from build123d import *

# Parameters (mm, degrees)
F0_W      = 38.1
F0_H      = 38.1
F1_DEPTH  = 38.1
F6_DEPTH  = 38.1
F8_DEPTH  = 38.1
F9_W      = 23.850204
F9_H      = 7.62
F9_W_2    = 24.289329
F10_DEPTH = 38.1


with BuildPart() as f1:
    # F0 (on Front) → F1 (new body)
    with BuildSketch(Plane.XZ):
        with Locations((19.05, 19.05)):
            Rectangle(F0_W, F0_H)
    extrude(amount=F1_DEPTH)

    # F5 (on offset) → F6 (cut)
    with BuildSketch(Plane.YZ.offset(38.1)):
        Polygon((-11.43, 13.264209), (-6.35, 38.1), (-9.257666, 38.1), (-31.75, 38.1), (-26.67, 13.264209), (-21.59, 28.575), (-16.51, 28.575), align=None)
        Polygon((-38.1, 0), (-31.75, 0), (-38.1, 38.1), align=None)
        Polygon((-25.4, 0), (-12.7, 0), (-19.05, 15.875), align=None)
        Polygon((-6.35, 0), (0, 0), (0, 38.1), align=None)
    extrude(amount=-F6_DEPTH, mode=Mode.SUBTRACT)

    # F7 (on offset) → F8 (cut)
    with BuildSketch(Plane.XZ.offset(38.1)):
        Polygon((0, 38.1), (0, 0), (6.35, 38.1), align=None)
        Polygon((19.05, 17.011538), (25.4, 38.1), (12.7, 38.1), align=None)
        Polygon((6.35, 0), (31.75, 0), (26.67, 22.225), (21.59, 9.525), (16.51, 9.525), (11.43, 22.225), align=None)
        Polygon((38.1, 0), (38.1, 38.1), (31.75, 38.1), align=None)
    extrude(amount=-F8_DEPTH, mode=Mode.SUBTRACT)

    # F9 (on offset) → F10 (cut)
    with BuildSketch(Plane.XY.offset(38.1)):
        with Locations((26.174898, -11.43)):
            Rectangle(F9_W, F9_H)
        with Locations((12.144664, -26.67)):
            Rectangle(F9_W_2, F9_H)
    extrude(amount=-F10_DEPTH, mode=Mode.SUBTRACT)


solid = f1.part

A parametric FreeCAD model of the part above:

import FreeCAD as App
import Part
import Sketcher

V = App.Vector
Q = App.Units.Quantity

doc = App.newDocument("Part")
body = doc.addObject("PartDesign::Body", "Body")

# Sketch on XZ plane
sketch1 = body.newObject("Sketcher::SketchObject", "Sketch")
sketch1.AttachmentSupport = (doc.getObject("XZ_Plane"), [""])
sketch1.MapMode = "FlatFace"
sketch1.addGeometry([
    Part.LineSegment(V(0, 38.1, 0), V(0, 0, 0)),
    Part.LineSegment(V(0, 0, 0), V(38.1, 0, 0)),
    Part.LineSegment(V(38.1, 0, 0), V(38.1, 38.1, 0)),
    Part.LineSegment(V(38.1, 38.1, 0), V(0, 38.1, 0)),
], False)
sketch1.addConstraint([
    Sketcher.Constraint("Coincident", 0, 2, 1, 1),
    Sketcher.Constraint("Coincident", 1, 2, 2, 1),
    Sketcher.Constraint("Coincident", 2, 2, 3, 1),
    Sketcher.Constraint("Coincident", 3, 2, 0, 1),
    Sketcher.Constraint("Vertical", 0),
    Sketcher.Constraint("Horizontal", 1),
    Sketcher.Constraint("Vertical", 2),
    Sketcher.Constraint("Horizontal", 3),
    Sketcher.Constraint("Coincident", 0, 2, -1, 1),
    Sketcher.Constraint("Equal", 3, 0),
    Sketcher.Constraint("DistanceX", 1, 1, 1, 2, Q("1.5 in")),
])
pad1 = body.newObject("PartDesign::Pad", "Pad")
pad1.Profile = sketch1
pad1.Length = Q("1.5 in")

# Sketch on YZ plane
sketch2 = body.newObject("Sketcher::SketchObject", "Sketch001")
sketch2.AttachmentSupport = (doc.getObject("YZ_Plane"), [""])
sketch2.MapMode = "FlatFace"
sketch2.AttachmentOffset = App.Placement(V(0, 0, 1.5 * 25.4), App.Rotation())
sketch2.addGeometry([
    Part.LineSegment(V(-11.43, 13.264209, 0), V(-6.35, 38.1, 0)),  # 0
    Part.LineSegment(V(-6.35, 38.1, 0), V(-31.75, 38.1, 0)),  # 1
    Part.LineSegment(V(-31.75, 38.1, 0), V(-26.67, 13.264209, 0)),  # 2
    Part.LineSegment(V(-26.67, 13.264209, 0), V(-21.59, 28.575, 0)),  # 3
    Part.LineSegment(V(-21.59, 28.575, 0), V(-16.51, 28.575, 0)),  # 4
    Part.LineSegment(V(-16.51, 28.575, 0), V(-11.43, 13.264209, 0)),  # 5
    Part.LineSegment(V(-38.1, 0, 0), V(-31.75, 0, 0)),  # 6
    Part.LineSegment(V(-31.75, 0, 0), V(-38.1, 38.1, 0)),  # 7
    Part.LineSegment(V(-38.1, 38.1, 0), V(-38.1, 0, 0)),  # 8
    Part.LineSegment(V(-25.4, 0, 0), V(-12.7, 0, 0)),  # 9
    Part.LineSegment(V(-12.7, 0, 0), V(-19.05, 15.875, 0)),  # 10
    Part.LineSegment(V(-19.05, 15.875, 0), V(-25.4, 0, 0)),  # 11
    Part.LineSegment(V(-6.35, 0, 0), V(0, 0, 0)),  # 12
    Part.LineSegment(V(0, 0, 0), V(0, 38.1, 0)),  # 13
    Part.LineSegment(V(0, 38.1, 0), V(-6.35, 0, 0)),  # 14
], False)
sketch2.addConstraint([
    Sketcher.Constraint("Coincident", 0, 2, 1, 1),
    Sketcher.Constraint("Coincident", 1, 2, 2, 1),
    Sketcher.Constraint("Coincident", 2, 2, 3, 1),
    Sketcher.Constraint("Coincident", 3, 2, 4, 1),
    Sketcher.Constraint("Coincident", 4, 2, 5, 1),
    Sketcher.Constraint("Coincident", 5, 2, 0, 1),
    Sketcher.Constraint("Coincident", 6, 2, 7, 1),
    Sketcher.Constraint("Coincident", 7, 2, 8, 1),
    Sketcher.Constraint("Coincident", 8, 2, 6, 1),
    Sketcher.Constraint("Coincident", 9, 2, 10, 1),
    Sketcher.Constraint("Coincident", 10, 2, 11, 1),
    Sketcher.Constraint("Coincident", 11, 2, 9, 1),
    Sketcher.Constraint("Coincident", 12, 2, 13, 1),
    Sketcher.Constraint("Coincident", 13, 2, 14, 1),
    Sketcher.Constraint("Coincident", 14, 2, 12, 1),
    Sketcher.Constraint("Horizontal", 1),
    Sketcher.Constraint("Horizontal", 4),
    Sketcher.Constraint("Horizontal", 6),
    Sketcher.Constraint("Vertical", 8),
    Sketcher.Constraint("Horizontal", 9),
    Sketcher.Constraint("Horizontal", 12),
    Sketcher.Constraint("Vertical", 13),
    Sketcher.Constraint("Coincident", 12, 2, -1, 1),
    Sketcher.Constraint("PointOnObject", 6, 2, -1),
    Sketcher.Constraint("PointOnObject", 9, 2, -1),
    Sketcher.Constraint("Horizontal", 2, 2, 5, 2),
    Sketcher.Constraint("Horizontal", 1, 2, 7, 2),
    Sketcher.Constraint("Horizontal", 7, 2, 13, 2),
    Sketcher.Constraint("Vertical", 1, 2, 6, 2),
    Sketcher.Constraint("Vertical", 0, 2, 14, 2),
    Sketcher.Constraint("Equal", 6, 12),
    Sketcher.Constraint("Equal", 0, 2),
    Sketcher.Constraint("Equal", 3, 5),
    Sketcher.Constraint("Equal", 10, 11),
    Sketcher.Constraint("DistanceX", 1, 2, 1, 1, Q("1 in")),
    Sketcher.Constraint("DistanceX", 4, 1, 4, 2, Q("0.2 in")),
    Sketcher.Constraint("DistanceX", 9, 1, 9, 2, Q("0.5 in")),
    Sketcher.Constraint("DistanceY", 8, 2, 8, 1, Q("1.5 in")),
    Sketcher.Constraint("DistanceX", 11, 2, -1, 1, Q("1 in")),
    Sketcher.Constraint("DistanceX", 8, 2, 9, 2, Q("1 in")),
    Sketcher.Constraint("DistanceX", 1, 2, 2, 2, Q("0.2 in")),
    Sketcher.Constraint("DistanceY", 10, 2, 3, 2, Q("0.5 in")),
    Sketcher.Constraint("DistanceY", -1, 1, 3, 2, Q("1.125 in")),
    Sketcher.Constraint("Distance", 3, Q("0.6351002 in")),
])
pocket1 = body.newObject("PartDesign::Pocket", "Pocket")
pocket1.Profile = sketch2
pocket1.Length = Q("1.5 in")

# Sketch on XZ plane
sketch3 = body.newObject("Sketcher::SketchObject", "Sketch002")
sketch3.AttachmentSupport = (doc.getObject("XZ_Plane"), [""])
sketch3.MapMode = "FlatFace"
sketch3.AttachmentOffset = App.Placement(V(0, 0, 1.5 * 25.4), App.Rotation())
sketch3.addGeometry([
    Part.LineSegment(V(0, 38.1, 0), V(0, 0, 0)),  # 0
    Part.LineSegment(V(0, 0, 0), V(6.35, 38.1, 0)),  # 1
    Part.LineSegment(V(6.35, 38.1, 0), V(0, 38.1, 0)),  # 2
    Part.LineSegment(V(19.05, 17.011538, 0), V(25.4, 38.1, 0)),  # 3
    Part.LineSegment(V(25.4, 38.1, 0), V(12.7, 38.1, 0)),  # 4
    Part.LineSegment(V(12.7, 38.1, 0), V(19.05, 17.011538, 0)),  # 5
    Part.LineSegment(V(6.35, 0, 0), V(31.75, 0, 0)),  # 6
    Part.LineSegment(V(31.75, 0, 0), V(26.67, 22.225, 0)),  # 7
    Part.LineSegment(V(26.67, 22.225, 0), V(21.59, 9.525, 0)),  # 8
    Part.LineSegment(V(21.59, 9.525, 0), V(16.51, 9.525, 0)),  # 9
    Part.LineSegment(V(16.51, 9.525, 0), V(11.43, 22.225, 0)),  # 10
    Part.LineSegment(V(11.43, 22.225, 0), V(6.35, 0, 0)),  # 11
    Part.LineSegment(V(38.1, 0, 0), V(38.1, 38.1, 0)),  # 12
    Part.LineSegment(V(38.1, 38.1, 0), V(31.75, 38.1, 0)),  # 13
    Part.LineSegment(V(31.75, 38.1, 0), V(38.1, 0, 0)),  # 14
], False)
sketch3.addConstraint([
    Sketcher.Constraint("Coincident", 0, 2, 1, 1),
    Sketcher.Constraint("Coincident", 1, 2, 2, 1),
    Sketcher.Constraint("Coincident", 2, 2, 0, 1),
    Sketcher.Constraint("Coincident", 3, 2, 4, 1),
    Sketcher.Constraint("Coincident", 4, 2, 5, 1),
    Sketcher.Constraint("Coincident", 5, 2, 3, 1),
    Sketcher.Constraint("Coincident", 6, 2, 7, 1),
    Sketcher.Constraint("Coincident", 7, 2, 8, 1),
    Sketcher.Constraint("Coincident", 8, 2, 9, 1),
    Sketcher.Constraint("Coincident", 9, 2, 10, 1),
    Sketcher.Constraint("Coincident", 10, 2, 11, 1),
    Sketcher.Constraint("Coincident", 11, 2, 6, 1),
    Sketcher.Constraint("Coincident", 12, 2, 13, 1),
    Sketcher.Constraint("Coincident", 13, 2, 14, 1),
    Sketcher.Constraint("Coincident", 14, 2, 12, 1),
    Sketcher.Constraint("Vertical", 0),
    Sketcher.Constraint("Horizontal", 2),
    Sketcher.Constraint("Horizontal", 4),
    Sketcher.Constraint("Horizontal", 6),
    Sketcher.Constraint("Horizontal", 9),
    Sketcher.Constraint("Vertical", 12),
    Sketcher.Constraint("Horizontal", 13),
    Sketcher.Constraint("Coincident", 0, 2, -1, 1),
    Sketcher.Constraint("PointOnObject", 6, 2, -1),
    Sketcher.Constraint("PointOnObject", 14, 2, -1),
    Sketcher.Constraint("Horizontal", 2, 2, 3, 2),
    Sketcher.Constraint("Horizontal", 7, 2, 10, 2),
    Sketcher.Constraint("Horizontal", 4, 2, 12, 2),
    Sketcher.Constraint("Vertical", 1, 2, 11, 2),
    Sketcher.Constraint("Vertical", 6, 2, 13, 2),
    Sketcher.Constraint("Equal", 2, 13),
    Sketcher.Constraint("Equal", 3, 5),
    Sketcher.Constraint("Equal", 8, 10),
    Sketcher.Constraint("Equal", 7, 11),
    Sketcher.Constraint("DistanceX", 6, 1, 6, 2, Q("1 in")),
    Sketcher.Constraint("DistanceX", 4, 2, 4, 1, Q("0.5 in")),
    Sketcher.Constraint("DistanceX", 9, 2, 9, 1, Q("0.2 in")),
    Sketcher.Constraint("DistanceY", 0, 2, 0, 1, Q("1.5 in")),
    Sketcher.Constraint("DistanceX", -1, 1, 3, 2, Q("1 in")),
    Sketcher.Constraint("DistanceX", 4, 2, 12, 2, Q("1 in")),
    Sketcher.Constraint("DistanceX", 5, 2, 7, 2, Q("0.3 in")),
    Sketcher.Constraint("DistanceY", 8, 2, 7, 2, Q("0.5 in")),
    Sketcher.Constraint("DistanceY", -1, 1, 7, 2, Q("0.875 in")),
    Sketcher.Constraint("DistanceY", -1, 1, 5, 2, 17.011538),
])
pocket2 = body.newObject("PartDesign::Pocket", "Pocket001")
pocket2.Profile = sketch3
pocket2.Length = Q("1.5 in")

# Sketch on XY plane
sketch4 = body.newObject("Sketcher::SketchObject", "Sketch003")
sketch4.AttachmentSupport = (doc.getObject("XY_Plane"), [""])
sketch4.MapMode = "FlatFace"
sketch4.AttachmentOffset = App.Placement(V(0, 0, 1.5 * 25.4), App.Rotation())
sketch4.addGeometry([
    Part.LineSegment(V(14.249796, -7.62, 0), V(14.249796, -15.24, 0)),  # 0
    Part.LineSegment(V(14.249796, -15.24, 0), V(38.1, -15.24, 0)),  # 1
    Part.LineSegment(V(38.1, -15.24, 0), V(38.1, -7.62, 0)),  # 2
    Part.LineSegment(V(38.1, -7.62, 0), V(14.249796, -7.62, 0)),  # 3
    Part.LineSegment(V(0, -22.86, 0), V(0, -30.48, 0)),  # 4
    Part.LineSegment(V(0, -30.48, 0), V(24.289328, -30.48, 0)),  # 5
    Part.LineSegment(V(24.289328, -30.48, 0), V(24.289328, -22.86, 0)),  # 6
    Part.LineSegment(V(24.289328, -22.86, 0), V(0, -22.86, 0)),  # 7
], False)
sketch4.addConstraint([
    Sketcher.Constraint("Coincident", 0, 2, 1, 1),
    Sketcher.Constraint("Coincident", 1, 2, 2, 1),
    Sketcher.Constraint("Coincident", 2, 2, 3, 1),
    Sketcher.Constraint("Coincident", 3, 2, 0, 1),
    Sketcher.Constraint("Coincident", 4, 2, 5, 1),
    Sketcher.Constraint("Coincident", 5, 2, 6, 1),
    Sketcher.Constraint("Coincident", 6, 2, 7, 1),
    Sketcher.Constraint("Coincident", 7, 2, 4, 1),
    Sketcher.Constraint("Vertical", 0),
    Sketcher.Constraint("Horizontal", 1),
    Sketcher.Constraint("Vertical", 2),
    Sketcher.Constraint("Horizontal", 3),
    Sketcher.Constraint("Vertical", 4),
    Sketcher.Constraint("Horizontal", 5),
    Sketcher.Constraint("Vertical", 6),
    Sketcher.Constraint("Horizontal", 7),
    Sketcher.Constraint("PointOnObject", 4, 2, -2),
    Sketcher.Constraint("Equal", 2, 4),
    Sketcher.Constraint("DistanceY", 0, 2, 0, 1, Q("0.3 in")),
    Sketcher.Constraint("DistanceY", 0, 2, -1, 1, Q("0.6 in")),
    Sketcher.Constraint("DistanceX", -1, 1, 1, 2, Q("1.5 in")),
    Sketcher.Constraint("DistanceY", 4, 2, -1, 1, Q("1.2 in")),
    Sketcher.Constraint("DistanceX", 5, 1, 5, 2, 24.289329),
    Sketcher.Constraint("DistanceX", 1, 1, 1, 2, 23.850204),
])
pocket3 = body.newObject("PartDesign::Pocket", "Pocket002")
pocket3.Profile = sketch4
pocket3.Length = Q("1.5 in")

doc.recompute()
